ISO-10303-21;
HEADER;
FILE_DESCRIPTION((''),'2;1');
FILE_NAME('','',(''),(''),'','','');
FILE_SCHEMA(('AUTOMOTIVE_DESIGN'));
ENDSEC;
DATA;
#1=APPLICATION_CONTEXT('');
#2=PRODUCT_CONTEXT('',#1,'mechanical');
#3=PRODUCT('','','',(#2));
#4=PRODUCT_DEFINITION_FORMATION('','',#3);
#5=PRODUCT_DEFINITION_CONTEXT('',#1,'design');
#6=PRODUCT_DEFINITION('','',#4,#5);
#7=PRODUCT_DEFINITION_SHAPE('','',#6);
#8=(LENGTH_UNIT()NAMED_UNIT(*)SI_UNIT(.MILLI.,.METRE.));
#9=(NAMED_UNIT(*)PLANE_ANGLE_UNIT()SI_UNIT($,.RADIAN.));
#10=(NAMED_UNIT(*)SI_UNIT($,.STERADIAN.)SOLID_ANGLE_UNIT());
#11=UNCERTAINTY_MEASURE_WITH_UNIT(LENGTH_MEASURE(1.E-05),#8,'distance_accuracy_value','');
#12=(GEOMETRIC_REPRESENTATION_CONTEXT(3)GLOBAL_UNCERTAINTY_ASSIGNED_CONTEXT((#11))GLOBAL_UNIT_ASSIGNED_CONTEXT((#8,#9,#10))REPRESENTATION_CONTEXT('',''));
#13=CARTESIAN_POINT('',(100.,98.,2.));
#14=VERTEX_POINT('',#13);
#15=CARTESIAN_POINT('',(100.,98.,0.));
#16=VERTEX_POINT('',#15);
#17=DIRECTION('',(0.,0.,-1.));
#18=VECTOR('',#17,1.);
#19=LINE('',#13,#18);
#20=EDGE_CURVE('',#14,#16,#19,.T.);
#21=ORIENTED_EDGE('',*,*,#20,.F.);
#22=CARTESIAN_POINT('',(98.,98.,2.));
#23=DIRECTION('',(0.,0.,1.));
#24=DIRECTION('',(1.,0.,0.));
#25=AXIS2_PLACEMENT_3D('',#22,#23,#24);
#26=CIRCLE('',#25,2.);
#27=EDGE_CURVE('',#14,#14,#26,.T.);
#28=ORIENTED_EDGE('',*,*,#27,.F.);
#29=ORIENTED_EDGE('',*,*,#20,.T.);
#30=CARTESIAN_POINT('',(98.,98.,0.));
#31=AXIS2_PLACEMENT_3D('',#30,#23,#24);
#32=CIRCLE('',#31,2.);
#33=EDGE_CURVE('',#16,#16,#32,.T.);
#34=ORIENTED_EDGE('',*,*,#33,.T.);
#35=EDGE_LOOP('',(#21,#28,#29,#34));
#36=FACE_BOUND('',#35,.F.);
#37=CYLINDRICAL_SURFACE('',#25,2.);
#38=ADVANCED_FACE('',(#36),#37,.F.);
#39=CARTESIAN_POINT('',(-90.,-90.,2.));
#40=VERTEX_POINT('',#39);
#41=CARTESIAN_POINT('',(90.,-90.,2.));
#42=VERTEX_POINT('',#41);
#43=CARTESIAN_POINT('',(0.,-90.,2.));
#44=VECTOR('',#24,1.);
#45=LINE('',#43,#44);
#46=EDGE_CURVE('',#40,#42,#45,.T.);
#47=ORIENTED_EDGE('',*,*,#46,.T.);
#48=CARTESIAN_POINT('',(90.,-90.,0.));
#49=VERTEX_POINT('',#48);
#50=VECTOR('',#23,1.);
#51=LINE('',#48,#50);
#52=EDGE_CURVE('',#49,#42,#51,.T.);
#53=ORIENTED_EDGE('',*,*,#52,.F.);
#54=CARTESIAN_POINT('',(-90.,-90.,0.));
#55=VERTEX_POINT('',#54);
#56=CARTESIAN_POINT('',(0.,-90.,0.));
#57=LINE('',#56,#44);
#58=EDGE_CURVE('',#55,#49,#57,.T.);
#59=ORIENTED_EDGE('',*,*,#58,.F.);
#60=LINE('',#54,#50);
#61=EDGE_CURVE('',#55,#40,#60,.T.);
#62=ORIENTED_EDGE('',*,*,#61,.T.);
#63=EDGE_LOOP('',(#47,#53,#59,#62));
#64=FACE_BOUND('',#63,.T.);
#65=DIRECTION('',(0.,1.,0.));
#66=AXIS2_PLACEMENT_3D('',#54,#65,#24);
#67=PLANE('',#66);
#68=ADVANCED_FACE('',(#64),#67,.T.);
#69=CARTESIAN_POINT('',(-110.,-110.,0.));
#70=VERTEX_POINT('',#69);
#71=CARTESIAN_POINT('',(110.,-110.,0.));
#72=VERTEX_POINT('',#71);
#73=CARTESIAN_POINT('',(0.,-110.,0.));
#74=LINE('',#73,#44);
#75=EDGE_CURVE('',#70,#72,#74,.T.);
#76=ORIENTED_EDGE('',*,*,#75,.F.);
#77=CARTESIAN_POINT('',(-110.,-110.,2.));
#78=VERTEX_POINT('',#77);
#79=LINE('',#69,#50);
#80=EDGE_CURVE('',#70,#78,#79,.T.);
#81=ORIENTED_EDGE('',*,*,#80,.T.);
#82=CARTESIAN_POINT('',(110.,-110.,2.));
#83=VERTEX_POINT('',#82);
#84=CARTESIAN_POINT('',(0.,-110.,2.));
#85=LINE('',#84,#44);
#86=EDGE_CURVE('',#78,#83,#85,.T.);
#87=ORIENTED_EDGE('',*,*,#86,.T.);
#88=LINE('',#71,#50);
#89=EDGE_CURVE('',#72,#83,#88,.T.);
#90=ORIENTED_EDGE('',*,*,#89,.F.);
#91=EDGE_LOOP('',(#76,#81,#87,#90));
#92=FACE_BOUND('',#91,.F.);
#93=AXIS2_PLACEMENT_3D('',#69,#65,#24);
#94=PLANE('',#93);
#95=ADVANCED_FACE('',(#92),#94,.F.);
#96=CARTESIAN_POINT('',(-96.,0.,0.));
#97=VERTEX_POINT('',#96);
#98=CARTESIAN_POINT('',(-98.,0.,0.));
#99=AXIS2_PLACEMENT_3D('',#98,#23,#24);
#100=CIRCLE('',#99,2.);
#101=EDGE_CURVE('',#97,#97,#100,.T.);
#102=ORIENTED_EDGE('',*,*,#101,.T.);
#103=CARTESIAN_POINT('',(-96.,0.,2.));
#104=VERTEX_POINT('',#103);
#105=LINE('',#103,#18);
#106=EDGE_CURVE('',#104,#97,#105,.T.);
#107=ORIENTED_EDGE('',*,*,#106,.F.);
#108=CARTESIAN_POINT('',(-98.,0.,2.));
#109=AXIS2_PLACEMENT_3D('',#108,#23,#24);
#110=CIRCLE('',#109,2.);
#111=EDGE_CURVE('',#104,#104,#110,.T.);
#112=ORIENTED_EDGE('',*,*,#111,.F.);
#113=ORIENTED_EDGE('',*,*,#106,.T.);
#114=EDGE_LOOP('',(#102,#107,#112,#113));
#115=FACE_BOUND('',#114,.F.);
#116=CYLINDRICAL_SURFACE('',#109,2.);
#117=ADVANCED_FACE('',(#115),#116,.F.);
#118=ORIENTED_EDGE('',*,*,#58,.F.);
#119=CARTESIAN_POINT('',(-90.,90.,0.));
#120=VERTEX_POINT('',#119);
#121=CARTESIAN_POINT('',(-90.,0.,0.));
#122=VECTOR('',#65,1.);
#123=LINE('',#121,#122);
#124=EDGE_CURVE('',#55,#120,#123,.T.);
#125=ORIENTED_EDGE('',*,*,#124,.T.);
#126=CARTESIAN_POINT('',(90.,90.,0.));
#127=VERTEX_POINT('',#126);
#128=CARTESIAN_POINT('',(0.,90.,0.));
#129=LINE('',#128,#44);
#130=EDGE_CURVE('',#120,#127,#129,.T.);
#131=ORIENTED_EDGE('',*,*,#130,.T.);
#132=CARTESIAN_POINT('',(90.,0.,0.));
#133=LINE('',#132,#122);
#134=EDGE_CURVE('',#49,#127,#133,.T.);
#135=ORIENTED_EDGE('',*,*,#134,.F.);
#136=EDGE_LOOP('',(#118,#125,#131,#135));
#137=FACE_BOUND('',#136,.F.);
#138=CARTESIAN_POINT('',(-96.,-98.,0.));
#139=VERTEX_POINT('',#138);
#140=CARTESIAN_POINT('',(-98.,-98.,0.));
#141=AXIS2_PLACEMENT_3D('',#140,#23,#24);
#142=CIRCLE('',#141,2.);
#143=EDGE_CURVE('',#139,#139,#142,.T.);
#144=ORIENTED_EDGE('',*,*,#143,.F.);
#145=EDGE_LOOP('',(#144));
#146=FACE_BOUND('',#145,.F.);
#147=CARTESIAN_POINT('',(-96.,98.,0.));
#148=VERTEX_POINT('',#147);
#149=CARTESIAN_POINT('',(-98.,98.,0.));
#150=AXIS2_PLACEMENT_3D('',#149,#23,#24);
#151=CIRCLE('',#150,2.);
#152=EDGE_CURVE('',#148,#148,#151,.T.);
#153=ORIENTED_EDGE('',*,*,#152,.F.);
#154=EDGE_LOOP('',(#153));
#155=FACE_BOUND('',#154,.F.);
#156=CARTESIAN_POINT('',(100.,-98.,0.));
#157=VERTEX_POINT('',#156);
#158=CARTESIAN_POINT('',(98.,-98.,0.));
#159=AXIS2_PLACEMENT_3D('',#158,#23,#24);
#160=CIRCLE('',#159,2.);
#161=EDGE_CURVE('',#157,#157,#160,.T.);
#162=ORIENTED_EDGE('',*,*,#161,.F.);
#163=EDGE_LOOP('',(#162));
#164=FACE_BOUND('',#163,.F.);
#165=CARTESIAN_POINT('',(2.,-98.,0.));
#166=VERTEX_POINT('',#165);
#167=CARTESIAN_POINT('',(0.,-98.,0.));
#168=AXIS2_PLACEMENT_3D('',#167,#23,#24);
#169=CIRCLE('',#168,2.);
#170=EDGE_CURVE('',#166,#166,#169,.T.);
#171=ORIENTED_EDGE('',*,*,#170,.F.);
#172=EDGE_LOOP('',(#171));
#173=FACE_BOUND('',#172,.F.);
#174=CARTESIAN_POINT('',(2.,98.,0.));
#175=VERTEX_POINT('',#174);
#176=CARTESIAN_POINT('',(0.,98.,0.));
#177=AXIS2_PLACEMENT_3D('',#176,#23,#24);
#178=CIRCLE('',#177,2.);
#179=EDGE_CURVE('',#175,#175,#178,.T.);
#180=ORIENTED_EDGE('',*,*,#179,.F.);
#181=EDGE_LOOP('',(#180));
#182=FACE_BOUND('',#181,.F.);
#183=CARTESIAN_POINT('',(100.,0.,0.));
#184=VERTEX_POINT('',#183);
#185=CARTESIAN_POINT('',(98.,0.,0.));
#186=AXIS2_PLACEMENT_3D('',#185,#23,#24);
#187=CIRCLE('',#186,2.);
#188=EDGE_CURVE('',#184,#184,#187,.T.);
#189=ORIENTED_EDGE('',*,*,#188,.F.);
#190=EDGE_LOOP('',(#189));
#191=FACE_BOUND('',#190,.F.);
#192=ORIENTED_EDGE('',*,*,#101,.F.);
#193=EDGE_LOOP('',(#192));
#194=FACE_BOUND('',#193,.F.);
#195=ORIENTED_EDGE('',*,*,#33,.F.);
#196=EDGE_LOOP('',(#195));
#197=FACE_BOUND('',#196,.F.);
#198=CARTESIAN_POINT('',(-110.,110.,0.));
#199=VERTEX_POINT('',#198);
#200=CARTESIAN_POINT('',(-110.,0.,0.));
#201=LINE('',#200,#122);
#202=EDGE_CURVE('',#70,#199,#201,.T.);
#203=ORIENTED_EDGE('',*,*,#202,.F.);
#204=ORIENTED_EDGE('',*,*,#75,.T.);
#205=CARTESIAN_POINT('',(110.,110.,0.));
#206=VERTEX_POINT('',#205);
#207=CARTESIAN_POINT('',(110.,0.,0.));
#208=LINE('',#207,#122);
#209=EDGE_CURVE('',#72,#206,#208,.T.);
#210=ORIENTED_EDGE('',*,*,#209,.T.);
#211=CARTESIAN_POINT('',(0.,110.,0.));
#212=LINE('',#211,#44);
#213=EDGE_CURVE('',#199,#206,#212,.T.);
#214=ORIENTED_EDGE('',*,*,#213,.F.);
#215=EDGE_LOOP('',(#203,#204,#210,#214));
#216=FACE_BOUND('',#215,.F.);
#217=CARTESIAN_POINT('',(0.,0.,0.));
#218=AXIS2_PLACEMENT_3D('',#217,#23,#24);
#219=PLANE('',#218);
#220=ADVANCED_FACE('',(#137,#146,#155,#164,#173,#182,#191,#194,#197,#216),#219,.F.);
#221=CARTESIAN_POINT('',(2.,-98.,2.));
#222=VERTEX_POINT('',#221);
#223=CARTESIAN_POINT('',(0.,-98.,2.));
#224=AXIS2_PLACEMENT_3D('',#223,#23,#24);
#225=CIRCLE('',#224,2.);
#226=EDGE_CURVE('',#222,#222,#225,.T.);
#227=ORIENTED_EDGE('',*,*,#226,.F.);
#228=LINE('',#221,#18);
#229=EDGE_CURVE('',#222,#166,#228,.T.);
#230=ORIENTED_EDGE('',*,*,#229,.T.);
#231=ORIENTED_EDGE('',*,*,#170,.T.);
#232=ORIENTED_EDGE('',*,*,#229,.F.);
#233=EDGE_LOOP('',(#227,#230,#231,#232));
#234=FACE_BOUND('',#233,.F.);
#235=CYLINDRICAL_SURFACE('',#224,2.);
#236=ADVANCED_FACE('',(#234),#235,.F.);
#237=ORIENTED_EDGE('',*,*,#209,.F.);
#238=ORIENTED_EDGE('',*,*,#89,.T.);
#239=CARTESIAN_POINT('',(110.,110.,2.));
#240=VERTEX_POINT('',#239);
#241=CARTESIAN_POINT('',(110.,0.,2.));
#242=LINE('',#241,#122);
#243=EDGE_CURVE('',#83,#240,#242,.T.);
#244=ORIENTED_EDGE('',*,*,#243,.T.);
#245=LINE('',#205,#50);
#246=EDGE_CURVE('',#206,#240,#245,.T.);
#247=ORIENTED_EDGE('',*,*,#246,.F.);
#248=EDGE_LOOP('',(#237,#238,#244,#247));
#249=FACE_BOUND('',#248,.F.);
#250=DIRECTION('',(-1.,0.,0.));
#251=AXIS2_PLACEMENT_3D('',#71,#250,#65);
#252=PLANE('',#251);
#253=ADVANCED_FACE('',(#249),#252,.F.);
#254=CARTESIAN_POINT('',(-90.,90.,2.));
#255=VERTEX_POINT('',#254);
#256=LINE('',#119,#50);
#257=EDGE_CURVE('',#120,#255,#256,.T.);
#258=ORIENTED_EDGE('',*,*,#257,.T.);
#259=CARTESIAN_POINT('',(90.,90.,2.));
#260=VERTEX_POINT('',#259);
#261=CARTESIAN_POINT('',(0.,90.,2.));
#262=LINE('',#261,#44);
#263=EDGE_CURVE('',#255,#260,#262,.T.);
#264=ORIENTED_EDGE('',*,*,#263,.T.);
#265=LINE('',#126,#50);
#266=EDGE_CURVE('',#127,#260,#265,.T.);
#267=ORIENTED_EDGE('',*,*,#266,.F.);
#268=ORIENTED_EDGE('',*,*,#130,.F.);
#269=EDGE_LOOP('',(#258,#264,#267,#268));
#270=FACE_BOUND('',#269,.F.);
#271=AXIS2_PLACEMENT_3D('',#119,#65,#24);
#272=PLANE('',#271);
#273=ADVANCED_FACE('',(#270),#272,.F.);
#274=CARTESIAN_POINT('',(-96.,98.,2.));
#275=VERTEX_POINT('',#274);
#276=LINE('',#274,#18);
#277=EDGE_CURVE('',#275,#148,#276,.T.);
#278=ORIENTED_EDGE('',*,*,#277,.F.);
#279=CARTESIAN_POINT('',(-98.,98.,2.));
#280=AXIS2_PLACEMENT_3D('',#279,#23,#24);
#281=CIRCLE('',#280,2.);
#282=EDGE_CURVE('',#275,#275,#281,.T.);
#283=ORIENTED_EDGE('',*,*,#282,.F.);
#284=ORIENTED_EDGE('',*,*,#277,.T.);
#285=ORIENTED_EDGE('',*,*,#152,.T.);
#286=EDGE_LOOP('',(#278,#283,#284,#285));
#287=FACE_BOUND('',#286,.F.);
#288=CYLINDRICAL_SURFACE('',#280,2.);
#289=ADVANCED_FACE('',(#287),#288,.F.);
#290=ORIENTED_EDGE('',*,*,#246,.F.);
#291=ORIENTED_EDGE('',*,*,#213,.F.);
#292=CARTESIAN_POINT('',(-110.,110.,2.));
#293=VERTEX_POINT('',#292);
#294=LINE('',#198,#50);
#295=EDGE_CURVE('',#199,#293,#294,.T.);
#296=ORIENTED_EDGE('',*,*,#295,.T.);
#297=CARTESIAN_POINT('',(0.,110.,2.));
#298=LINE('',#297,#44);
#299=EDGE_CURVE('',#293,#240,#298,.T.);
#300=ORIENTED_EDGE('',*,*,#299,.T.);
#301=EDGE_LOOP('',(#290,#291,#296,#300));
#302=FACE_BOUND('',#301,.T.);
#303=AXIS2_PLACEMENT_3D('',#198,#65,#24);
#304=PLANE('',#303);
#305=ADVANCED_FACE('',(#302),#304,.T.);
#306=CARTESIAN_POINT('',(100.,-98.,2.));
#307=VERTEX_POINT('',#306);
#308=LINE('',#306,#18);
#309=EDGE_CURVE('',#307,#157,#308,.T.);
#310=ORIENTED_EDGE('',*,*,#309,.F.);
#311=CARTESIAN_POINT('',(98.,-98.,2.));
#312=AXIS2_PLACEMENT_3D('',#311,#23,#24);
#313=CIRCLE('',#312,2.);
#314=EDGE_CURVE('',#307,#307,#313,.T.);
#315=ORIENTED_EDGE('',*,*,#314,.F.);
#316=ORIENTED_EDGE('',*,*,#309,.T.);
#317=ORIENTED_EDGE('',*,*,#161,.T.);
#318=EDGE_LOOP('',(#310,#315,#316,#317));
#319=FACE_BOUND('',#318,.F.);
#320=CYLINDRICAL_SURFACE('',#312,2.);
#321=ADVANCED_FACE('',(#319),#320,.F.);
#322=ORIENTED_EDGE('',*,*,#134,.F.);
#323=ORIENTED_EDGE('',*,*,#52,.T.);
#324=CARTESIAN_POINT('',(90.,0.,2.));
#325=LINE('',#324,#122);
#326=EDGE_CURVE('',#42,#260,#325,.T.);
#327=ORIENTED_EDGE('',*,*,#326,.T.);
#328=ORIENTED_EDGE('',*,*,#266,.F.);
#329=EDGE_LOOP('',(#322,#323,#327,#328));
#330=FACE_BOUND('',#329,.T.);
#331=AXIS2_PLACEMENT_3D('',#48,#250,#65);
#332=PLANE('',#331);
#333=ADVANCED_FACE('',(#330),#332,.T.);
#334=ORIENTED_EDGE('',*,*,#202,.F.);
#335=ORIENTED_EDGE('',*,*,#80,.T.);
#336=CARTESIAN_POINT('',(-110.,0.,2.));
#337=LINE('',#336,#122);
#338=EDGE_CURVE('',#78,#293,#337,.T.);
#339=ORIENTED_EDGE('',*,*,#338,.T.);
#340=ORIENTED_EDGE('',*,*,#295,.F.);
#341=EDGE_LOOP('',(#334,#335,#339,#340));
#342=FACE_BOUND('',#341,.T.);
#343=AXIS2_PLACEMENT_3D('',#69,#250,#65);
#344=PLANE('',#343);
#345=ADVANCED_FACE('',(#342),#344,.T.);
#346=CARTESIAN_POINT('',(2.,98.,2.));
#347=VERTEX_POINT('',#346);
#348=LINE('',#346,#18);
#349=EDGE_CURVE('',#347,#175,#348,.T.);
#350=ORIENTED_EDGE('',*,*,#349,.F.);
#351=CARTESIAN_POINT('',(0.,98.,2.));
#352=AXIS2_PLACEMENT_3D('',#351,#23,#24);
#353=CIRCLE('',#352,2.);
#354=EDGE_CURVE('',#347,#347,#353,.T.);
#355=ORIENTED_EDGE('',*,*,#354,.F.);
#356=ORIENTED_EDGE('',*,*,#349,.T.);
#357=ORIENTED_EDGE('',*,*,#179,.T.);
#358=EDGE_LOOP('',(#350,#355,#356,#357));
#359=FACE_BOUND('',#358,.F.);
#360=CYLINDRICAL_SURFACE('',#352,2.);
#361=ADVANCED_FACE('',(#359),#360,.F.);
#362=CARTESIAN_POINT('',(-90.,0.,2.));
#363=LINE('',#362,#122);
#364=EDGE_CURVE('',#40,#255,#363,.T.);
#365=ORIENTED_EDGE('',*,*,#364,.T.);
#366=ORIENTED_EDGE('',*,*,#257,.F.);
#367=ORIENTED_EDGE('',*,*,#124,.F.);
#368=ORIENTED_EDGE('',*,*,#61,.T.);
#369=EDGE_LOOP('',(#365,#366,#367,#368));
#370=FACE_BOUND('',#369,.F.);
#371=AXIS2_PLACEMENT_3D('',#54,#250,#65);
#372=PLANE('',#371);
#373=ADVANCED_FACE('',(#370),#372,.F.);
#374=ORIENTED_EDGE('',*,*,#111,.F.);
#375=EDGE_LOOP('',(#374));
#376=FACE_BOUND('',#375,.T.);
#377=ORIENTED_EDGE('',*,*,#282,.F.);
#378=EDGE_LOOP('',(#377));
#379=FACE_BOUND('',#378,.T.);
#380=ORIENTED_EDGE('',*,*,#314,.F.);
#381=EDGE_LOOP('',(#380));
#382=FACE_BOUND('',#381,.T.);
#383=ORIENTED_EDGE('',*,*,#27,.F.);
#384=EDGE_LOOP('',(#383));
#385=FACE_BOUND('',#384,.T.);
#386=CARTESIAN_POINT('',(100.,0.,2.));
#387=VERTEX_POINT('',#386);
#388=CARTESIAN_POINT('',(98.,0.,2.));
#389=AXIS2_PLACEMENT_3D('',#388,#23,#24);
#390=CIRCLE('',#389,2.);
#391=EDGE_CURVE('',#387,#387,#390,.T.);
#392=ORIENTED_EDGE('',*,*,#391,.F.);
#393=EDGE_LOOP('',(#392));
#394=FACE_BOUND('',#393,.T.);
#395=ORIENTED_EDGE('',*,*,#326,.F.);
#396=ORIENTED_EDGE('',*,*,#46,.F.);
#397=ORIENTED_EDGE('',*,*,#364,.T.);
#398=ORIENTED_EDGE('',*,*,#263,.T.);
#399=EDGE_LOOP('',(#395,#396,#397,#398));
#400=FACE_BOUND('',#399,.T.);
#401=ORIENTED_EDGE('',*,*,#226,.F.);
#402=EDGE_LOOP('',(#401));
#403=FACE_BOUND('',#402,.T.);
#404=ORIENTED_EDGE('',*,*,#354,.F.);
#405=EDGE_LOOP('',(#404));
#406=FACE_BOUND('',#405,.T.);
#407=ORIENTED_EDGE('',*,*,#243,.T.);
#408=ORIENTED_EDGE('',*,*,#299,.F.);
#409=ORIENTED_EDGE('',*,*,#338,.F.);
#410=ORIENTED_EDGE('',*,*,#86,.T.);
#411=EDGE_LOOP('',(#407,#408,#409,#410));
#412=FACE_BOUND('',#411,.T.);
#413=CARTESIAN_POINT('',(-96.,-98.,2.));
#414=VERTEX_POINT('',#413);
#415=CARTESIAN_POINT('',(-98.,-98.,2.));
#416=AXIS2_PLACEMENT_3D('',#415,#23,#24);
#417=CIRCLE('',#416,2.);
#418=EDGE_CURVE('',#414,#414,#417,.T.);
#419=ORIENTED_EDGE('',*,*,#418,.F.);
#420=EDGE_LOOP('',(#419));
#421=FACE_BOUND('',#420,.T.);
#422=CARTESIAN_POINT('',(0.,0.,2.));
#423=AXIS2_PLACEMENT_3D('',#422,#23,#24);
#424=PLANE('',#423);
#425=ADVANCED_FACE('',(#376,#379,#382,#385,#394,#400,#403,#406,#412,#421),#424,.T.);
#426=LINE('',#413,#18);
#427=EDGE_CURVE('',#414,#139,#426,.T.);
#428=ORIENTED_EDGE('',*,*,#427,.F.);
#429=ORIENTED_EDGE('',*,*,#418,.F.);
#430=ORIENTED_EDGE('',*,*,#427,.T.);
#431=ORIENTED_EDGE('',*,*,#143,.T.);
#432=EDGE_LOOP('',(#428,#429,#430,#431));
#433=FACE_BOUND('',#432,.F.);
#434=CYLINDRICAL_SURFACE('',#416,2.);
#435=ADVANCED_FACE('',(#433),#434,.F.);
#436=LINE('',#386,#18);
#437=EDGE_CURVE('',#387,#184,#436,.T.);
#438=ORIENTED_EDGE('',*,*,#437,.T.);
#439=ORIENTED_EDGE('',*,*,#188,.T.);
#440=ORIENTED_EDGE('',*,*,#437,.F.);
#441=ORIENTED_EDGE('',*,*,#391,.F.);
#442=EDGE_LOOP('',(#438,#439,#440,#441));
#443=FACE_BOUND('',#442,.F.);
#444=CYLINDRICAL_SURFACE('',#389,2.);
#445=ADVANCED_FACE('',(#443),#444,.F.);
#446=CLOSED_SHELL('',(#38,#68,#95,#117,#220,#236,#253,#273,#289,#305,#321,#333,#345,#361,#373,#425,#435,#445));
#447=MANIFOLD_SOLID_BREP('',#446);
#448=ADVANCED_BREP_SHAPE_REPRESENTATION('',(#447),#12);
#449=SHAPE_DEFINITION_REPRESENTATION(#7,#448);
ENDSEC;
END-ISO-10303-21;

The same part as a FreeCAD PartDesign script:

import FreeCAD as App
import Part
import Sketcher
Q = App.Units.Quantity

doc = App.newDocument("Part")
body = doc.addObject("PartDesign::Body", "Body")

# Sketch on XY plane
sketch1 = body.newObject("Sketcher::SketchObject", "Sketch")
sketch1.AttachmentSupport = (doc.getObject("XY_Plane"), [""])
sketch1.MapMode = "FlatFace"
sketch1.addGeometry([
    Part.LineSegment(App.Vector(-110, 110, 0), App.Vector(-110, -110, 0)),  # 0
    Part.LineSegment(App.Vector(-110, -110, 0), App.Vector(110, -110, 0)),  # 1
    Part.LineSegment(App.Vector(110, -110, 0), App.Vector(110, 110, 0)),  # 2
    Part.LineSegment(App.Vector(110, 110, 0), App.Vector(-110, 110, 0)),  # 3
    Part.LineSegment(App.Vector(90, -90, 0), App.Vector(-90, -90, 0)),  # 4
    Part.LineSegment(App.Vector(-90, -90, 0), App.Vector(-90, 90, 0)),  # 5
    Part.LineSegment(App.Vector(-90, 90, 0), App.Vector(90, 90, 0)),  # 6
    Part.LineSegment(App.Vector(90, 90, 0), App.Vector(90, -90, 0)),  # 7
], False)
sketch1.addConstraint([
    Sketcher.Constraint("Coincident", 0, 2, 1, 1),
    Sketcher.Constraint("Coincident", 1, 2, 2, 1),
    Sketcher.Constraint("Coincident", 2, 2, 3, 1),
    Sketcher.Constraint("Coincident", 3, 2, 0, 1),
    Sketcher.Constraint("Coincident", 4, 2, 5, 1),
    Sketcher.Constraint("Coincident", 5, 2, 6, 1),
    Sketcher.Constraint("Coincident", 6, 2, 7, 1),
    Sketcher.Constraint("Coincident", 7, 2, 4, 1),
    Sketcher.Constraint("Vertical", 0),
    Sketcher.Constraint("Horizontal", 1),
    Sketcher.Constraint("Vertical", 2),
    Sketcher.Constraint("Horizontal", 3),
    Sketcher.Constraint("Horizontal", 4),
    Sketcher.Constraint("Vertical", 5),
    Sketcher.Constraint("Horizontal", 6),
    Sketcher.Constraint("Vertical", 7),
    Sketcher.Constraint("Symmetric", 0, 2, 2, 2, -1, 1),
    Sketcher.Constraint("Symmetric", 4, 2, 6, 2, -1, 1),
    Sketcher.Constraint("Equal", 3, 0),
    Sketcher.Constraint("Equal", 6, 5),
    Sketcher.Constraint("DistanceX", 1, 1, 1, 2, Q("220 mm")),
    Sketcher.Constraint("DistanceX", 4, 2, 4, 1, Q("180 mm")),
])
pad1 = body.newObject("PartDesign::Pad", "Pad")
pad1.Profile = sketch1
pad1.Length = 2

# Sketch on XY plane
sketch2 = body.newObject("Sketcher::SketchObject", "Sketch001")
sketch2.AttachmentSupport = (doc.getObject("XY_Plane"), [""])
sketch2.MapMode = "FlatFace"
sketch2.AttachmentOffset = App.Placement(App.Vector(0, 0, 2), App.Rotation())
sketch2.addGeometry(Part.Circle(App.Vector(0, 98, 0), App.Vector(0, 0, 1), 2), False)
sketch2.addConstraint([
    Sketcher.Constraint("PointOnObject", 0, 3, -2),
    Sketcher.Constraint("Diameter", 0, Q("4 mm")),
    Sketcher.Constraint("DistanceY", -1, 1, 0, 3, Q("98 mm")),
])
pocket1 = body.newObject("PartDesign::Pocket", "Pocket")
pocket1.Profile = sketch2
pocket1.Length = 10
doc.recompute()

linearpattern = body.newObject("PartDesign::LinearPattern", "LinearPattern")
linearpattern.Originals = [pocket1]
linearpattern.Direction = (doc.getObject("X_Axis"), [""])
linearpattern.Mode = "offset"
linearpattern.Offset = 98
linearpattern.Occurrences = 2
body.Tip = linearpattern
doc.recompute()

linearpattern2 = body.newObject("PartDesign::LinearPattern", "LinearPattern001")
linearpattern2.Originals = [pocket1]
linearpattern2.Direction = (doc.getObject("X_Axis"), [""])
linearpattern2.Mode = "offset"
linearpattern2.Offset = 98
linearpattern2.Occurrences = 2
linearpattern2.Reversed = True
body.Tip = linearpattern2

# Sketch on XY plane
sketch3 = body.newObject("Sketcher::SketchObject", "Sketch002")
sketch3.AttachmentSupport = (doc.getObject("XY_Plane"), [""])
sketch3.MapMode = "FlatFace"
sketch3.AttachmentOffset = App.Placement(App.Vector(0, 0, 2), App.Rotation())
sketch3.addGeometry(Part.Circle(App.Vector(98, 0, 0), App.Vector(0, 0, 1), 2), False)
sketch3.addConstraint([
    Sketcher.Constraint("PointOnObject", 0, 3, -1),
    Sketcher.Constraint("Diameter", 0, Q("4 mm")),
    Sketcher.Constraint("DistanceX", -1, 1, 0, 3, Q("98 mm")),
])
pocket2 = body.newObject("PartDesign::Pocket", "Pocket001")
pocket2.Profile = sketch3
pocket2.Length = 10

# Sketch on XY plane
sketch4 = body.newObject("Sketcher::SketchObject", "Sketch003")
sketch4.AttachmentSupport = (doc.getObject("XY_Plane"), [""])
sketch4.MapMode = "FlatFace"
sketch4.AttachmentOffset = App.Placement(App.Vector(0, 0, 2), App.Rotation())
sketch4.addGeometry(Part.Circle(App.Vector(98, -98, 0), App.Vector(0, 0, 1), 2), False)
sketch4.addConstraint([
    Sketcher.Constraint("Diameter", 0, Q("4 mm")),
    Sketcher.Constraint("DistanceX", -1, 1, 0, 3, Q("98 mm")),
    Sketcher.Constraint("DistanceY", 0, 3, -1, 1, Q("98 mm")),
])
pocket3 = body.newObject("PartDesign::Pocket", "Pocket002")
pocket3.Profile = sketch4
pocket3.Length = 10

# Sketch on XY plane
sketch5 = body.newObject("Sketcher::SketchObject", "Sketch004")
sketch5.AttachmentSupport = (doc.getObject("XY_Plane"), [""])
sketch5.MapMode = "FlatFace"
sketch5.AttachmentOffset = App.Placement(App.Vector(0, 0, 2), App.Rotation())
sketch5.addGeometry(Part.Circle(App.Vector(-98, 0, 0), App.Vector(0, 0, 1), 2), False)
sketch5.addConstraint([
    Sketcher.Constraint("PointOnObject", 0, 3, -1),
    Sketcher.Constraint("Diameter", 0, Q("4 mm")),
    Sketcher.Constraint("DistanceX", 0, 3, -1, 1, Q("98 mm")),
])
pocket4 = body.newObject("PartDesign::Pocket", "Pocket003")
pocket4.Profile = sketch5
pocket4.Length = 10

# Sketch on XY plane
sketch6 = body.newObject("Sketcher::SketchObject", "Sketch005")
sketch6.AttachmentSupport = (doc.getObject("XY_Plane"), [""])
sketch6.MapMode = "FlatFace"
sketch6.AttachmentOffset = App.Placement(App.Vector(0, 0, 2), App.Rotation())
sketch6.addGeometry(Part.Circle(App.Vector(-98, -98, 0), App.Vector(0, 0, 1), 2), False)
sketch6.addConstraint([
    Sketcher.Constraint("Diameter", 0, Q("4 mm")),
    Sketcher.Constraint("DistanceX", 0, 3, -1, 1, Q("98 mm")),
    Sketcher.Constraint("DistanceY", 0, 3, -1, 1, Q("98 mm")),
])
pocket5 = body.newObject("PartDesign::Pocket", "Pocket004")
pocket5.Profile = sketch6
pocket5.Length = 10
doc.recompute()

linearpattern3 = body.newObject("PartDesign::LinearPattern", "LinearPattern002")
linearpattern3.Originals = [pocket1]
linearpattern3.Direction = (doc.getObject("Y_Axis"), [""])
linearpattern3.Mode = "offset"
linearpattern3.Offset = 196
linearpattern3.Occurrences = 3
linearpattern3.Reversed = True
body.Tip = linearpattern3

doc.recompute()
